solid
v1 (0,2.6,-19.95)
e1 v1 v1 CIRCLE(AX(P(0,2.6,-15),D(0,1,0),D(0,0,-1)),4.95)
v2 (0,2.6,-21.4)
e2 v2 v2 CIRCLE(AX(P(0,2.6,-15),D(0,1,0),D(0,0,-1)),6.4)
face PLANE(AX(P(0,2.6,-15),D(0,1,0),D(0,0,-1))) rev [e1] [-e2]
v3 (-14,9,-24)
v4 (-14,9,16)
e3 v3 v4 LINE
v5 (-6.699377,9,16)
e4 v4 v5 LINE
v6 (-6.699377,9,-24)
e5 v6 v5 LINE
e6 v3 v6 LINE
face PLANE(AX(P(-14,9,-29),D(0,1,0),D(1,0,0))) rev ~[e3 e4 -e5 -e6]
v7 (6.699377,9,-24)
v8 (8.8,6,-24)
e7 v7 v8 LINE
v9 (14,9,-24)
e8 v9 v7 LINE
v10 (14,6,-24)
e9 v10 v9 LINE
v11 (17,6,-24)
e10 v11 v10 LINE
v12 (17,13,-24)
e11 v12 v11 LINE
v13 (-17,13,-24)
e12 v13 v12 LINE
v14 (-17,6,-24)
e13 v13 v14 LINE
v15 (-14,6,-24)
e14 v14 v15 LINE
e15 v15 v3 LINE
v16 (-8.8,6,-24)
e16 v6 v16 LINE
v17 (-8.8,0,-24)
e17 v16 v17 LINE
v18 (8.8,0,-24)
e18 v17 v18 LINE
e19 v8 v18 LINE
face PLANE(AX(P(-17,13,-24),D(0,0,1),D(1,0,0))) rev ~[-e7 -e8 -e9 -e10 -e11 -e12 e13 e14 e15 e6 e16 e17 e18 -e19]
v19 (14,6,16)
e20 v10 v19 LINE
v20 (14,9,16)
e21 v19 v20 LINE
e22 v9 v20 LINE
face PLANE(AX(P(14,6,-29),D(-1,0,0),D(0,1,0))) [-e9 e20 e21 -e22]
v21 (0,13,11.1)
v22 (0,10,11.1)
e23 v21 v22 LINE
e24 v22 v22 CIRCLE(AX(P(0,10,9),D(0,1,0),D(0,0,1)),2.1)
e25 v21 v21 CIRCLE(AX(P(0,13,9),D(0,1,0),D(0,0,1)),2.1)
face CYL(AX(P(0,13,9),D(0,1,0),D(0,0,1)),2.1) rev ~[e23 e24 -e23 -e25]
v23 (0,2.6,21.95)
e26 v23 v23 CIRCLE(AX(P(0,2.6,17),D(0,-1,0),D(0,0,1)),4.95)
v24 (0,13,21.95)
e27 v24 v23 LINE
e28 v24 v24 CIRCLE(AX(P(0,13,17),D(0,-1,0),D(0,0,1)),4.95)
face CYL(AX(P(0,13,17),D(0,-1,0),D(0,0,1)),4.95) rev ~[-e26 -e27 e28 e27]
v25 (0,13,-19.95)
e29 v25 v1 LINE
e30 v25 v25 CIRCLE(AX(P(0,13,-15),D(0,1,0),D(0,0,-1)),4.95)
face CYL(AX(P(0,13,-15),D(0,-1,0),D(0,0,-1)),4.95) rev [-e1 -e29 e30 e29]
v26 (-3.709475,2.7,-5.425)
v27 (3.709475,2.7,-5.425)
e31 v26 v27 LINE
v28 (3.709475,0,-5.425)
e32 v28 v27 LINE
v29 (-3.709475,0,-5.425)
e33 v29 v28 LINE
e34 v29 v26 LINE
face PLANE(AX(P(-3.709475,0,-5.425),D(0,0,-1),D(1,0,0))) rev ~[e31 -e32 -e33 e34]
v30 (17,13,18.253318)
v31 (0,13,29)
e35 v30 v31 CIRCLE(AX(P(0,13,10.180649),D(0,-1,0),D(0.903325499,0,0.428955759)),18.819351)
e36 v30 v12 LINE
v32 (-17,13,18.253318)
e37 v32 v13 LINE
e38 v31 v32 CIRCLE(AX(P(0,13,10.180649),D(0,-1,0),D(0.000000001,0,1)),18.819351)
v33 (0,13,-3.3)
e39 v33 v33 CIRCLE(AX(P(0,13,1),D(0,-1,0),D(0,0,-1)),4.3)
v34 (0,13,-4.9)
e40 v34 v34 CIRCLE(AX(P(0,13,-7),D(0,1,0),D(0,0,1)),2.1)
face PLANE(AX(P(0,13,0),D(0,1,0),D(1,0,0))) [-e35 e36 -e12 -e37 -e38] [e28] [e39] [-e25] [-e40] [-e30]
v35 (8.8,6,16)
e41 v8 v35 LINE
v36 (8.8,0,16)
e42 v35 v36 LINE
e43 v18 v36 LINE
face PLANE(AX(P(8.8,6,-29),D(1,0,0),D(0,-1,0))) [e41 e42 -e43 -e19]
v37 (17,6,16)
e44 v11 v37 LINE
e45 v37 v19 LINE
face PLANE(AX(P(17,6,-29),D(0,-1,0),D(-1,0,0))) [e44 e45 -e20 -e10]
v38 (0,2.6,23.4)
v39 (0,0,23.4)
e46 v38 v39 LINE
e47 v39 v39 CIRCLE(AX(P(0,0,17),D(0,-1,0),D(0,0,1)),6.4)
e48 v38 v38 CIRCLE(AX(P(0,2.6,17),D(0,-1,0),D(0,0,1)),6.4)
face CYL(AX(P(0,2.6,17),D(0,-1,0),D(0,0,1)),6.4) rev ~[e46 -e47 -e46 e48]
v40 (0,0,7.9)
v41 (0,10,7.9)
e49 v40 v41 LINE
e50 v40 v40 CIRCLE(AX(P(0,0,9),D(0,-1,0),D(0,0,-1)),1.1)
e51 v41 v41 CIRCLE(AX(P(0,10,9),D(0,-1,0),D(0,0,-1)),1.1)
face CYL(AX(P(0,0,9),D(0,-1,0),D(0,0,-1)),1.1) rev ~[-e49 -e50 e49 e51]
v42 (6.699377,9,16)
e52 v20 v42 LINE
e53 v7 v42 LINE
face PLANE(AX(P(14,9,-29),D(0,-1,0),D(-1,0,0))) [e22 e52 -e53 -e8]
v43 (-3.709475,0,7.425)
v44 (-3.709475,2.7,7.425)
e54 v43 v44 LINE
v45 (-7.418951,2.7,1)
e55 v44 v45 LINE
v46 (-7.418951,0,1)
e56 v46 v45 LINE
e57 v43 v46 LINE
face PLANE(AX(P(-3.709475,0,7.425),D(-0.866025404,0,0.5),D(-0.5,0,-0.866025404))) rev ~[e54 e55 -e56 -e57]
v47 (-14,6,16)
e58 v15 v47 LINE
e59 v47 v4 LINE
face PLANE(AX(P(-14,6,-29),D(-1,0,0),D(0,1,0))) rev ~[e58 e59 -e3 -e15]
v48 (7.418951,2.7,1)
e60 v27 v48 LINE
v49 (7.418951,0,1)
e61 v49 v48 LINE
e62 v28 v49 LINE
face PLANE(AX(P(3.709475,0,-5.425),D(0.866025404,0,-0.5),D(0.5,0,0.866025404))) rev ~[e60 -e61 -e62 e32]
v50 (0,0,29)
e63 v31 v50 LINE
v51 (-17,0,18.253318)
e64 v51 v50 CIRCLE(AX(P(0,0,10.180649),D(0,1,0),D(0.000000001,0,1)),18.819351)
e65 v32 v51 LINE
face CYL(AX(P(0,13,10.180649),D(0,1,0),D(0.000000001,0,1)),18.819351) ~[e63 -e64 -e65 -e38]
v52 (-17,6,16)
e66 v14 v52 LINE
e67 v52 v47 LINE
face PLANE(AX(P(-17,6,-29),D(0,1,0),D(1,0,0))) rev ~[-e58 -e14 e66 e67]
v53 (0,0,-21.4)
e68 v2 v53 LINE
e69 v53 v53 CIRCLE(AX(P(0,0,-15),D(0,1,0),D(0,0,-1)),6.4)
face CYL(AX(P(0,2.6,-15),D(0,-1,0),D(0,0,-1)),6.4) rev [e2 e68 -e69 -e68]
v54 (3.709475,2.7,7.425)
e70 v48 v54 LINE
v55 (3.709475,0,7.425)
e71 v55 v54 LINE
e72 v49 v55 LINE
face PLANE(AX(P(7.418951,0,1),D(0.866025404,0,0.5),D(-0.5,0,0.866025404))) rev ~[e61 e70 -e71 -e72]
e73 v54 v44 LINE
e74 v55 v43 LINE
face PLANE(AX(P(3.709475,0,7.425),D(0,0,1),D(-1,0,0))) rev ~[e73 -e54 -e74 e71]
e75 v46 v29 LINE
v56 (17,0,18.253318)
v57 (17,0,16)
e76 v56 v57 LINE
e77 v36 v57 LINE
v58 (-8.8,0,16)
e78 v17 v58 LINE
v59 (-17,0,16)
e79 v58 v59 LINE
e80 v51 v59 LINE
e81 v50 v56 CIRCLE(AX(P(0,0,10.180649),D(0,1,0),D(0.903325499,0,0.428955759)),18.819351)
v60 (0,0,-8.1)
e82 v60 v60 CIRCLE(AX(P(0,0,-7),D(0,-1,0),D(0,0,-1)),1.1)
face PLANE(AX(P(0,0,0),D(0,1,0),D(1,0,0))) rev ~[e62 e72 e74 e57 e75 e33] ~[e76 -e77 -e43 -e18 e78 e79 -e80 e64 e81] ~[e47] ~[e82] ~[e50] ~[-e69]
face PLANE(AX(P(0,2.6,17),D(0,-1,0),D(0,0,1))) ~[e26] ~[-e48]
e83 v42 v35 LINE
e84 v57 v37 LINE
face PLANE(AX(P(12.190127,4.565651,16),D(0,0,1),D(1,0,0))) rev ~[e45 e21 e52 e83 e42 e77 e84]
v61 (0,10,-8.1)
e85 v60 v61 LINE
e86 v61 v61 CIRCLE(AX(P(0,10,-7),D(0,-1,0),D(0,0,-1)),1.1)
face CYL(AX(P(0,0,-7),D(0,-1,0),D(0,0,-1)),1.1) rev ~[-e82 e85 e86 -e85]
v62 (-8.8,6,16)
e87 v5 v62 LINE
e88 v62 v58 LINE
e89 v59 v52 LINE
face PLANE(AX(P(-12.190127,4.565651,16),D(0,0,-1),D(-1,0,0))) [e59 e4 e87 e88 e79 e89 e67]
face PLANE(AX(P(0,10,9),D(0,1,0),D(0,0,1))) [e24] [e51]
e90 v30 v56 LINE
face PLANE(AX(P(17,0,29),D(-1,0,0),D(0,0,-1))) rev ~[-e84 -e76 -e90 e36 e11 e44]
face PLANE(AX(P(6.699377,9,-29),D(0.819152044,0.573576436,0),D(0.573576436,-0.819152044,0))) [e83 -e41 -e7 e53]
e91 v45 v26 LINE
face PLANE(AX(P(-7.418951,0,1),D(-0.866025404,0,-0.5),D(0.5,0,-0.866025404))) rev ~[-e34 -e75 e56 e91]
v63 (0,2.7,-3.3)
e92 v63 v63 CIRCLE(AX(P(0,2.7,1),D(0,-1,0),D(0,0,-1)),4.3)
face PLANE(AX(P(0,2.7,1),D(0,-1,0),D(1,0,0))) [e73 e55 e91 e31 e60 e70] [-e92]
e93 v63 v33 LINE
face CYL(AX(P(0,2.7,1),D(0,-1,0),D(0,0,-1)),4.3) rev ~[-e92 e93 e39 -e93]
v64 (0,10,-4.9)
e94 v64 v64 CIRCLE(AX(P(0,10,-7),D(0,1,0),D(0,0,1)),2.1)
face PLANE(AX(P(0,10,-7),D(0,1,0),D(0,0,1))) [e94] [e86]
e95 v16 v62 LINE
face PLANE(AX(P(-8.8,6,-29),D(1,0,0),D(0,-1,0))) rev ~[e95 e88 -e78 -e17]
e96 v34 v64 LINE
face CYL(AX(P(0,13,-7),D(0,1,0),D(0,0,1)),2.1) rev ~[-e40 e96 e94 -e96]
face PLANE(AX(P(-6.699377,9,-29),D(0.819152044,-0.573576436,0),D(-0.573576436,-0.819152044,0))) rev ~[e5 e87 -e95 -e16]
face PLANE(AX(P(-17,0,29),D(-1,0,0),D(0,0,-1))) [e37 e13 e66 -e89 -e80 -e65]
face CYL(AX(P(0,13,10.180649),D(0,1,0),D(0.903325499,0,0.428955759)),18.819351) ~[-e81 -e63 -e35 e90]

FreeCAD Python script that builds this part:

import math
import FreeCAD as App
import Part
import Sketcher

V = App.Vector
Q = App.Units.Quantity


def add_polygon(sketch, points):
    """Adds a closed chain of lines whose ends are joined by coincident constraints."""
    first, n = sketch.GeometryCount, len(points)
    for a, b in zip(points, points[1:] + points[:1]):
        sketch.addGeometry(Part.LineSegment(App.Vector(*a, 0), App.Vector(*b, 0)), False)
    for i in range(n):
        sketch.addConstraint(Sketcher.Constraint("Coincident", first + i, 2, first + (i + 1) % n, 1))

doc = App.newDocument("Part")
body = doc.addObject("PartDesign::Body", "Body")

# Sketch on XZ plane
sketch1 = body.newObject("Sketcher::SketchObject", "Sketch")
sketch1.AttachmentSupport = (doc.getObject("XZ_Plane"), [""])
sketch1.MapMode = "FlatFace"
add_polygon(sketch1, [(-17, -29), (-17, 29), (17, 29), (17, -29)])  # lines 0-3
sketch1.addConstraint([
    Sketcher.Constraint("Vertical", 0),
    Sketcher.Constraint("Horizontal", 1),
    Sketcher.Constraint("Vertical", 2),
    Sketcher.Constraint("Horizontal", 3),
    Sketcher.Constraint("Symmetric", 0, 2, 2, 2, -1, 1),
    Sketcher.Constraint("DistanceX", 1, 1, 1, 2, 34.0),
    Sketcher.Constraint("DistanceY", 0, 1, 0, 2, 58.0),
])
pad1 = body.newObject("PartDesign::Pad", "Pad")
pad1.Profile = sketch1
pad1.Length = 13
pad1.Reversed = True

# Sketch on YZ plane
sketch2 = body.newObject("Sketcher::SketchObject", "Sketch001")
sketch2.AttachmentSupport = (doc.getObject("YZ_Plane"), [""])
sketch2.MapMode = "FlatFace"
add_polygon(sketch2, [(13, 12.1), (13, 17), (0, 17), (0, 10.6), (2.6, 10.6), (2.6, 12.1)])  # lines 0-5
sketch2.addGeometry(Part.LineSegment(V(13, 17, 0), V(0, 17, 0)), True)  # axis
sketch2.addConstraint([
    Sketcher.Constraint("Vertical", 0),
    Sketcher.Constraint("Horizontal", 1),
    Sketcher.Constraint("Vertical", 2),
    Sketcher.Constraint("Horizontal", 3),
    Sketcher.Constraint("Vertical", 4),
    Sketcher.Constraint("Horizontal", 5),
    Sketcher.Constraint("Horizontal", 6),
    Sketcher.Constraint("Coincident", 6, 1, 0, 2),
    Sketcher.Constraint("PointOnObject", 1, 2, -2),
    Sketcher.Constraint("PointOnObject", 6, 2, -2),
    Sketcher.Constraint("DistanceX", 1, 2, 1, 1, 13.0),
    Sketcher.Constraint("DistanceX", 3, 1, 3, 2, 2.6),
    Sketcher.Constraint("DistanceY", 2, 2, 2, 1, 6.4),
    Sketcher.Constraint("DistanceY", -1, 1, 0, 2, 17.0),
    Sketcher.Constraint("DistanceY", 0, 1, 0, 2, 4.95),
])
groove = body.newObject("PartDesign::Groove", "Groove")
groove.Profile = sketch2
groove.ReferenceAxis = (sketch2, ["Axis0"])
groove.Angle = 360

# Sketch on XZ plane
sketch3 = body.newObject("Sketcher::SketchObject", "Sketch002")
sketch3.AttachmentSupport = (doc.getObject("XZ_Plane"), [""])
sketch3.MapMode = "FlatFace"
add_polygon(sketch3, [(4, -5), (7, 1), (4, 7), (-4, 7), (-7, 1), (-4, -5)])  # lines 0-5
sketch3.addConstraint([
    Sketcher.Constraint("Horizontal", 2),
    Sketcher.Constraint("Horizontal", 5),
    Sketcher.Constraint("Symmetric", 0, 2, 3, 2, -2),
    Sketcher.Constraint("Parallel", 0, 3),
    Sketcher.Constraint("Parallel", 1, 4),
    Sketcher.Constraint("Vertical", 2, 2, 4, 2),
    Sketcher.Constraint("Vertical", 1, 2, 5, 2),
    Sketcher.Constraint("Angle", 0, Q("60 deg")),
    Sketcher.Constraint("DistanceY", -1, 1, 0, 2, 1.0),
    Sketcher.Constraint("DistanceY", 4, 2, 2, 2, 12.85),
    Sketcher.Constraint("DistanceX", 2, 2, 2, 1, 7.418951),
])
pocket1 = body.newObject("PartDesign::Pocket", "Pocket")
pocket1.Profile = sketch3
pocket1.Length = 2.7

# Sketch on XZ plane
sketch4 = body.newObject("Sketcher::SketchObject", "Sketch003")
sketch4.AttachmentSupport = (doc.getObject("XZ_Plane"), [""])
sketch4.MapMode = "FlatFace"
sketch4.AttachmentOffset = App.Placement(V(0, 0, -2.7), App.Rotation())
sketch4.addGeometry(Part.Circle(V(0, 1, 0), V(0, 0, 1), 4.3), False)
sketch4.addConstraint([
    Sketcher.Constraint("PointOnObject", 0, 3, -2),
    Sketcher.Constraint("Diameter", 0, 8.6),
    Sketcher.Constraint("DistanceY", -1, 1, 0, 3, 1.0),
])
pocket2 = body.newObject("PartDesign::Pocket", "Pocket001")
pocket2.Profile = sketch4
pocket2.Type = "ThroughAll"

# Sketch on XY plane
sketch5 = body.newObject("Sketcher::SketchObject", "Sketch004")
sketch5.AttachmentSupport = (doc.getObject("XY_Plane"), [""])
sketch5.MapMode = "FlatFace"
sketch5.AttachmentOffset = App.Placement(V(0, 0, -29), App.Rotation())
add_polygon(sketch5, [(14, 6), (17, 6), (17, 0), (8.8, 0), (8.8, 6), (6.7, 9), (14, 9)])  # lines 0-6
add_polygon(sketch5, [(-8.8, 0), (-17, 0), (-17, 6), (-14, 6), (-14, 9), (-6.7, 9), (-8.8, 6)])  # lines 7-13
sketch5.addConstraint([
    Sketcher.Constraint("Horizontal", 0),
    Sketcher.Constraint("Vertical", 1),
    Sketcher.Constraint("Horizontal", 2),
    Sketcher.Constraint("Vertical", 3),
    Sketcher.Constraint("Horizontal", 5),
    Sketcher.Constraint("Vertical", 6),
    Sketcher.Constraint("Horizontal", 7),
    Sketcher.Constraint("Vertical", 8),
    Sketcher.Constraint("Horizontal", 9),
    Sketcher.Constraint("Vertical", 10),
    Sketcher.Constraint("Horizontal", 11),
    Sketcher.Constraint("Vertical", 13),
    Sketcher.Constraint("Symmetric", 1, 2, 7, 2, -1, 1),
    Sketcher.Constraint("Symmetric", 6, 2, 9, 2, -2),
    Sketcher.Constraint("Symmetric", 4, 2, 11, 2, -2),
    Sketcher.Constraint("Symmetric", 3, 2, 12, 2, -2),
    Sketcher.Constraint("PointOnObject", 1, 2, -1),
    Sketcher.Constraint("Horizontal", 0, 2, 3, 2),
    Sketcher.Constraint("Equal", 9, 6),
    Sketcher.Constraint("DistanceX", 0, 1, 0, 2, 3.0),
    Sketcher.Constraint("DistanceY", 1, 2, 1, 1, 6.0),
    Sketcher.Constraint("Angle", 4, Q("125 deg")),
    Sketcher.Constraint("DistanceX", 2, 2, 2, 1, 8.2),
    Sketcher.Constraint("DistanceX", -1, 1, 0, 2, 17.0),
])
pocket3 = body.newObject("PartDesign::Pocket", "Pocket002")
pocket3.Profile = sketch5
pocket3.Length = 45
pocket3.Reversed = True

# Sketch on XZ plane
sketch6 = body.newObject("Sketcher::SketchObject", "Sketch005")
sketch6.AttachmentSupport = (doc.getObject("XZ_Plane"), [""])
sketch6.MapMode = "FlatFace"
sketch6.AttachmentOffset = App.Placement(V(0, 0, -13), App.Rotation())
sketch6.addGeometry([
    Part.LineSegment(V(17, 29, 0), V(17, 18, 0)),  # 0
    Part.ArcOfCircle(Part.Circle(V(0, 10, 0), V(0, 0, 1), 19), math.radians(25), math.radians(90)),  # 1
    Part.LineSegment(V(0, 29, 0), V(17, 29, 0)),  # 2
    Part.LineSegment(V(-17, 29, 0), V(0, 29, 0)),  # 3
    Part.ArcOfCircle(Part.Circle(V(0, 10, 0), V(0, 0, 1), 19), math.radians(90), math.radians(155)),  # 4
    Part.LineSegment(V(-17, 18, 0), V(-17, 29, 0)),  # 5
], False)
sketch6.addConstraint([
    Sketcher.Constraint("Coincident", 0, 2, 1, 1),
    Sketcher.Constraint("Tangent", 1, 2, 2, 1),
    Sketcher.Constraint("Coincident", 2, 2, 0, 1),
    Sketcher.Constraint("Tangent", 3, 2, 4, 1),
    Sketcher.Constraint("Coincident", 4, 2, 5, 1),
    Sketcher.Constraint("Coincident", 5, 2, 3, 1),
    Sketcher.Constraint("Vertical", 0),
    Sketcher.Constraint("Horizontal", 2),
    Sketcher.Constraint("Horizontal", 3),
    Sketcher.Constraint("Vertical", 5),
    Sketcher.Constraint("Coincident", 4, 3, 1, 3),
    Sketcher.Constraint("Equal", 1, 4),
    Sketcher.Constraint("Symmetric", 0, 2, 4, 2, -2),
    Sketcher.Constraint("DistanceX", 2, 1, 2, 2, 17.0),
    Sketcher.Constraint("DistanceY", -1, 1, 1, 2, 29.0),
    Sketcher.Constraint("Radius", 1, 18.819351),
])
pocket4 = body.newObject("PartDesign::Pocket", "Pocket003")
pocket4.Profile = sketch6
pocket4.Type = "ThroughAll"
pocket4.Reversed = True

# Sketch on YZ plane
sketch7 = body.newObject("Sketcher::SketchObject", "Sketch006")
sketch7.AttachmentSupport = (doc.getObject("YZ_Plane"), [""])
sketch7.MapMode = "FlatFace"
add_polygon(sketch7, [(13, -15), (0, -15), (0, -21.4), (2.6, -21.4), (2.6, -19.9), (13, -19.9)])  # lines 0-5
sketch7.addGeometry(Part.LineSegment(V(0, -15, 0), V(13, -15, 0)), True)  # axis
sketch7.addConstraint([
    Sketcher.Constraint("Horizontal", 0),
    Sketcher.Constraint("Vertical", 1),
    Sketcher.Constraint("Horizontal", 2),
    Sketcher.Constraint("Vertical", 3),
    Sketcher.Constraint("Horizontal", 4),
    Sketcher.Constraint("Vertical", 5),
    Sketcher.Constraint("Horizontal", 6),
    Sketcher.Constraint("Coincident", 6, 1, 0, 2),
    Sketcher.Constraint("PointOnObject", 0, 2, -2),
    Sketcher.Constraint("Vertical", 4, 2, 6, 2),
    Sketcher.Constraint("DistanceX", 0, 2, 0, 1, 13.0),
    Sketcher.Constraint("DistanceX", 2, 1, 2, 2, 2.6),
    Sketcher.Constraint("DistanceY", 1, 2, 1, 1, 6.4),
    Sketcher.Constraint("DistanceY", 0, 2, -1, 1, 15.0),
    Sketcher.Constraint("DistanceY", 3, 1, 3, 2, 1.45),
])
groove2 = body.newObject("PartDesign::Groove", "Groove001")
groove2.Profile = sketch7
groove2.ReferenceAxis = (sketch7, ["Axis0"])
groove2.Angle = 360

# Sketch on XZ plane
sketch8 = body.newObject("Sketcher::SketchObject", "Sketch007")
sketch8.AttachmentSupport = (doc.getObject("XZ_Plane"), [""])
sketch8.MapMode = "FlatFace"
sketch8.addGeometry([
    Part.Circle(V(0, -7, 0), V(0, 0, 1), 1.1),
    Part.Circle(V(0, 9, 0), V(0, 0, 1), 1.1),
], False)
sketch8.addConstraint([
    Sketcher.Constraint("Equal", 0, 1),
    Sketcher.Constraint("PointOnObject", 0, 3, -2),
    Sketcher.Constraint("PointOnObject", 1, 3, -2),
    Sketcher.Constraint("Diameter", 0, 2.2),
    Sketcher.Constraint("DistanceY", 0, 3, -1, 1, 7.0),
    Sketcher.Constraint("DistanceY", -1, 1, 1, 3, 9.0),
])
pocket5 = body.newObject("PartDesign::Pocket", "Pocket004")
pocket5.Profile = sketch8
pocket5.Length = 13

# Sketch on XZ plane
sketch9 = body.newObject("Sketcher::SketchObject", "Sketch008")
sketch9.AttachmentSupport = (doc.getObject("XZ_Plane"), [""])
sketch9.MapMode = "FlatFace"
sketch9.AttachmentOffset = App.Placement(V(0, 0, -13), App.Rotation())
sketch9.addGeometry([
    Part.Circle(V(0, -7, 0), V(0, 0, 1), 2.1),
    Part.Circle(V(0, 9, 0), V(0, 0, 1), 2.1),
], False)
sketch9.addConstraint([
    Sketcher.Constraint("Equal", 0, 1),
    Sketcher.Constraint("PointOnObject", 0, 3, -2),
    Sketcher.Constraint("PointOnObject", 1, 3, -2),
    Sketcher.Constraint("Diameter", 0, 4.2),
    Sketcher.Constraint("DistanceY", 0, 3, -1, 1, 7.0),
    Sketcher.Constraint("DistanceY", -1, 1, 1, 3, 9.0),
])
pocket6 = body.newObject("PartDesign::Pocket", "Pocket005")
pocket6.Profile = sketch9
pocket6.Length = 3
pocket6.Reversed = True

# Sketch on XZ plane
sketch10 = body.newObject("Sketcher::SketchObject", "Sketch009")
sketch10.AttachmentSupport = (doc.getObject("XZ_Plane"), [""])
sketch10.MapMode = "FlatFace"
sketch10.AttachmentOffset = App.Placement(V(0, 0, -13), App.Rotation())
add_polygon(sketch10, [(-17, -29), (-17, -24), (17, -24), (17, -29)])  # lines 0-3
sketch10.addConstraint([
    Sketcher.Constraint("Vertical", 0),
    Sketcher.Constraint("Horizontal", 1),
    Sketcher.Constraint("Vertical", 2),
    Sketcher.Constraint("Horizontal", 3),
    Sketcher.Constraint("DistanceX", 1, 1, 1, 2, 34.0),
    Sketcher.Constraint("DistanceY", 0, 1, 0, 2, 5.0),
    Sketcher.Constraint("DistanceX", 0, 2, -1, 1, 17.0),
    Sketcher.Constraint("DistanceY", 0, 2, -1, 1, 24.0),
])
pocket7 = body.newObject("PartDesign::Pocket", "Pocket006")
pocket7.Profile = sketch10
pocket7.Length = 15
pocket7.Reversed = True

doc.recompute()
